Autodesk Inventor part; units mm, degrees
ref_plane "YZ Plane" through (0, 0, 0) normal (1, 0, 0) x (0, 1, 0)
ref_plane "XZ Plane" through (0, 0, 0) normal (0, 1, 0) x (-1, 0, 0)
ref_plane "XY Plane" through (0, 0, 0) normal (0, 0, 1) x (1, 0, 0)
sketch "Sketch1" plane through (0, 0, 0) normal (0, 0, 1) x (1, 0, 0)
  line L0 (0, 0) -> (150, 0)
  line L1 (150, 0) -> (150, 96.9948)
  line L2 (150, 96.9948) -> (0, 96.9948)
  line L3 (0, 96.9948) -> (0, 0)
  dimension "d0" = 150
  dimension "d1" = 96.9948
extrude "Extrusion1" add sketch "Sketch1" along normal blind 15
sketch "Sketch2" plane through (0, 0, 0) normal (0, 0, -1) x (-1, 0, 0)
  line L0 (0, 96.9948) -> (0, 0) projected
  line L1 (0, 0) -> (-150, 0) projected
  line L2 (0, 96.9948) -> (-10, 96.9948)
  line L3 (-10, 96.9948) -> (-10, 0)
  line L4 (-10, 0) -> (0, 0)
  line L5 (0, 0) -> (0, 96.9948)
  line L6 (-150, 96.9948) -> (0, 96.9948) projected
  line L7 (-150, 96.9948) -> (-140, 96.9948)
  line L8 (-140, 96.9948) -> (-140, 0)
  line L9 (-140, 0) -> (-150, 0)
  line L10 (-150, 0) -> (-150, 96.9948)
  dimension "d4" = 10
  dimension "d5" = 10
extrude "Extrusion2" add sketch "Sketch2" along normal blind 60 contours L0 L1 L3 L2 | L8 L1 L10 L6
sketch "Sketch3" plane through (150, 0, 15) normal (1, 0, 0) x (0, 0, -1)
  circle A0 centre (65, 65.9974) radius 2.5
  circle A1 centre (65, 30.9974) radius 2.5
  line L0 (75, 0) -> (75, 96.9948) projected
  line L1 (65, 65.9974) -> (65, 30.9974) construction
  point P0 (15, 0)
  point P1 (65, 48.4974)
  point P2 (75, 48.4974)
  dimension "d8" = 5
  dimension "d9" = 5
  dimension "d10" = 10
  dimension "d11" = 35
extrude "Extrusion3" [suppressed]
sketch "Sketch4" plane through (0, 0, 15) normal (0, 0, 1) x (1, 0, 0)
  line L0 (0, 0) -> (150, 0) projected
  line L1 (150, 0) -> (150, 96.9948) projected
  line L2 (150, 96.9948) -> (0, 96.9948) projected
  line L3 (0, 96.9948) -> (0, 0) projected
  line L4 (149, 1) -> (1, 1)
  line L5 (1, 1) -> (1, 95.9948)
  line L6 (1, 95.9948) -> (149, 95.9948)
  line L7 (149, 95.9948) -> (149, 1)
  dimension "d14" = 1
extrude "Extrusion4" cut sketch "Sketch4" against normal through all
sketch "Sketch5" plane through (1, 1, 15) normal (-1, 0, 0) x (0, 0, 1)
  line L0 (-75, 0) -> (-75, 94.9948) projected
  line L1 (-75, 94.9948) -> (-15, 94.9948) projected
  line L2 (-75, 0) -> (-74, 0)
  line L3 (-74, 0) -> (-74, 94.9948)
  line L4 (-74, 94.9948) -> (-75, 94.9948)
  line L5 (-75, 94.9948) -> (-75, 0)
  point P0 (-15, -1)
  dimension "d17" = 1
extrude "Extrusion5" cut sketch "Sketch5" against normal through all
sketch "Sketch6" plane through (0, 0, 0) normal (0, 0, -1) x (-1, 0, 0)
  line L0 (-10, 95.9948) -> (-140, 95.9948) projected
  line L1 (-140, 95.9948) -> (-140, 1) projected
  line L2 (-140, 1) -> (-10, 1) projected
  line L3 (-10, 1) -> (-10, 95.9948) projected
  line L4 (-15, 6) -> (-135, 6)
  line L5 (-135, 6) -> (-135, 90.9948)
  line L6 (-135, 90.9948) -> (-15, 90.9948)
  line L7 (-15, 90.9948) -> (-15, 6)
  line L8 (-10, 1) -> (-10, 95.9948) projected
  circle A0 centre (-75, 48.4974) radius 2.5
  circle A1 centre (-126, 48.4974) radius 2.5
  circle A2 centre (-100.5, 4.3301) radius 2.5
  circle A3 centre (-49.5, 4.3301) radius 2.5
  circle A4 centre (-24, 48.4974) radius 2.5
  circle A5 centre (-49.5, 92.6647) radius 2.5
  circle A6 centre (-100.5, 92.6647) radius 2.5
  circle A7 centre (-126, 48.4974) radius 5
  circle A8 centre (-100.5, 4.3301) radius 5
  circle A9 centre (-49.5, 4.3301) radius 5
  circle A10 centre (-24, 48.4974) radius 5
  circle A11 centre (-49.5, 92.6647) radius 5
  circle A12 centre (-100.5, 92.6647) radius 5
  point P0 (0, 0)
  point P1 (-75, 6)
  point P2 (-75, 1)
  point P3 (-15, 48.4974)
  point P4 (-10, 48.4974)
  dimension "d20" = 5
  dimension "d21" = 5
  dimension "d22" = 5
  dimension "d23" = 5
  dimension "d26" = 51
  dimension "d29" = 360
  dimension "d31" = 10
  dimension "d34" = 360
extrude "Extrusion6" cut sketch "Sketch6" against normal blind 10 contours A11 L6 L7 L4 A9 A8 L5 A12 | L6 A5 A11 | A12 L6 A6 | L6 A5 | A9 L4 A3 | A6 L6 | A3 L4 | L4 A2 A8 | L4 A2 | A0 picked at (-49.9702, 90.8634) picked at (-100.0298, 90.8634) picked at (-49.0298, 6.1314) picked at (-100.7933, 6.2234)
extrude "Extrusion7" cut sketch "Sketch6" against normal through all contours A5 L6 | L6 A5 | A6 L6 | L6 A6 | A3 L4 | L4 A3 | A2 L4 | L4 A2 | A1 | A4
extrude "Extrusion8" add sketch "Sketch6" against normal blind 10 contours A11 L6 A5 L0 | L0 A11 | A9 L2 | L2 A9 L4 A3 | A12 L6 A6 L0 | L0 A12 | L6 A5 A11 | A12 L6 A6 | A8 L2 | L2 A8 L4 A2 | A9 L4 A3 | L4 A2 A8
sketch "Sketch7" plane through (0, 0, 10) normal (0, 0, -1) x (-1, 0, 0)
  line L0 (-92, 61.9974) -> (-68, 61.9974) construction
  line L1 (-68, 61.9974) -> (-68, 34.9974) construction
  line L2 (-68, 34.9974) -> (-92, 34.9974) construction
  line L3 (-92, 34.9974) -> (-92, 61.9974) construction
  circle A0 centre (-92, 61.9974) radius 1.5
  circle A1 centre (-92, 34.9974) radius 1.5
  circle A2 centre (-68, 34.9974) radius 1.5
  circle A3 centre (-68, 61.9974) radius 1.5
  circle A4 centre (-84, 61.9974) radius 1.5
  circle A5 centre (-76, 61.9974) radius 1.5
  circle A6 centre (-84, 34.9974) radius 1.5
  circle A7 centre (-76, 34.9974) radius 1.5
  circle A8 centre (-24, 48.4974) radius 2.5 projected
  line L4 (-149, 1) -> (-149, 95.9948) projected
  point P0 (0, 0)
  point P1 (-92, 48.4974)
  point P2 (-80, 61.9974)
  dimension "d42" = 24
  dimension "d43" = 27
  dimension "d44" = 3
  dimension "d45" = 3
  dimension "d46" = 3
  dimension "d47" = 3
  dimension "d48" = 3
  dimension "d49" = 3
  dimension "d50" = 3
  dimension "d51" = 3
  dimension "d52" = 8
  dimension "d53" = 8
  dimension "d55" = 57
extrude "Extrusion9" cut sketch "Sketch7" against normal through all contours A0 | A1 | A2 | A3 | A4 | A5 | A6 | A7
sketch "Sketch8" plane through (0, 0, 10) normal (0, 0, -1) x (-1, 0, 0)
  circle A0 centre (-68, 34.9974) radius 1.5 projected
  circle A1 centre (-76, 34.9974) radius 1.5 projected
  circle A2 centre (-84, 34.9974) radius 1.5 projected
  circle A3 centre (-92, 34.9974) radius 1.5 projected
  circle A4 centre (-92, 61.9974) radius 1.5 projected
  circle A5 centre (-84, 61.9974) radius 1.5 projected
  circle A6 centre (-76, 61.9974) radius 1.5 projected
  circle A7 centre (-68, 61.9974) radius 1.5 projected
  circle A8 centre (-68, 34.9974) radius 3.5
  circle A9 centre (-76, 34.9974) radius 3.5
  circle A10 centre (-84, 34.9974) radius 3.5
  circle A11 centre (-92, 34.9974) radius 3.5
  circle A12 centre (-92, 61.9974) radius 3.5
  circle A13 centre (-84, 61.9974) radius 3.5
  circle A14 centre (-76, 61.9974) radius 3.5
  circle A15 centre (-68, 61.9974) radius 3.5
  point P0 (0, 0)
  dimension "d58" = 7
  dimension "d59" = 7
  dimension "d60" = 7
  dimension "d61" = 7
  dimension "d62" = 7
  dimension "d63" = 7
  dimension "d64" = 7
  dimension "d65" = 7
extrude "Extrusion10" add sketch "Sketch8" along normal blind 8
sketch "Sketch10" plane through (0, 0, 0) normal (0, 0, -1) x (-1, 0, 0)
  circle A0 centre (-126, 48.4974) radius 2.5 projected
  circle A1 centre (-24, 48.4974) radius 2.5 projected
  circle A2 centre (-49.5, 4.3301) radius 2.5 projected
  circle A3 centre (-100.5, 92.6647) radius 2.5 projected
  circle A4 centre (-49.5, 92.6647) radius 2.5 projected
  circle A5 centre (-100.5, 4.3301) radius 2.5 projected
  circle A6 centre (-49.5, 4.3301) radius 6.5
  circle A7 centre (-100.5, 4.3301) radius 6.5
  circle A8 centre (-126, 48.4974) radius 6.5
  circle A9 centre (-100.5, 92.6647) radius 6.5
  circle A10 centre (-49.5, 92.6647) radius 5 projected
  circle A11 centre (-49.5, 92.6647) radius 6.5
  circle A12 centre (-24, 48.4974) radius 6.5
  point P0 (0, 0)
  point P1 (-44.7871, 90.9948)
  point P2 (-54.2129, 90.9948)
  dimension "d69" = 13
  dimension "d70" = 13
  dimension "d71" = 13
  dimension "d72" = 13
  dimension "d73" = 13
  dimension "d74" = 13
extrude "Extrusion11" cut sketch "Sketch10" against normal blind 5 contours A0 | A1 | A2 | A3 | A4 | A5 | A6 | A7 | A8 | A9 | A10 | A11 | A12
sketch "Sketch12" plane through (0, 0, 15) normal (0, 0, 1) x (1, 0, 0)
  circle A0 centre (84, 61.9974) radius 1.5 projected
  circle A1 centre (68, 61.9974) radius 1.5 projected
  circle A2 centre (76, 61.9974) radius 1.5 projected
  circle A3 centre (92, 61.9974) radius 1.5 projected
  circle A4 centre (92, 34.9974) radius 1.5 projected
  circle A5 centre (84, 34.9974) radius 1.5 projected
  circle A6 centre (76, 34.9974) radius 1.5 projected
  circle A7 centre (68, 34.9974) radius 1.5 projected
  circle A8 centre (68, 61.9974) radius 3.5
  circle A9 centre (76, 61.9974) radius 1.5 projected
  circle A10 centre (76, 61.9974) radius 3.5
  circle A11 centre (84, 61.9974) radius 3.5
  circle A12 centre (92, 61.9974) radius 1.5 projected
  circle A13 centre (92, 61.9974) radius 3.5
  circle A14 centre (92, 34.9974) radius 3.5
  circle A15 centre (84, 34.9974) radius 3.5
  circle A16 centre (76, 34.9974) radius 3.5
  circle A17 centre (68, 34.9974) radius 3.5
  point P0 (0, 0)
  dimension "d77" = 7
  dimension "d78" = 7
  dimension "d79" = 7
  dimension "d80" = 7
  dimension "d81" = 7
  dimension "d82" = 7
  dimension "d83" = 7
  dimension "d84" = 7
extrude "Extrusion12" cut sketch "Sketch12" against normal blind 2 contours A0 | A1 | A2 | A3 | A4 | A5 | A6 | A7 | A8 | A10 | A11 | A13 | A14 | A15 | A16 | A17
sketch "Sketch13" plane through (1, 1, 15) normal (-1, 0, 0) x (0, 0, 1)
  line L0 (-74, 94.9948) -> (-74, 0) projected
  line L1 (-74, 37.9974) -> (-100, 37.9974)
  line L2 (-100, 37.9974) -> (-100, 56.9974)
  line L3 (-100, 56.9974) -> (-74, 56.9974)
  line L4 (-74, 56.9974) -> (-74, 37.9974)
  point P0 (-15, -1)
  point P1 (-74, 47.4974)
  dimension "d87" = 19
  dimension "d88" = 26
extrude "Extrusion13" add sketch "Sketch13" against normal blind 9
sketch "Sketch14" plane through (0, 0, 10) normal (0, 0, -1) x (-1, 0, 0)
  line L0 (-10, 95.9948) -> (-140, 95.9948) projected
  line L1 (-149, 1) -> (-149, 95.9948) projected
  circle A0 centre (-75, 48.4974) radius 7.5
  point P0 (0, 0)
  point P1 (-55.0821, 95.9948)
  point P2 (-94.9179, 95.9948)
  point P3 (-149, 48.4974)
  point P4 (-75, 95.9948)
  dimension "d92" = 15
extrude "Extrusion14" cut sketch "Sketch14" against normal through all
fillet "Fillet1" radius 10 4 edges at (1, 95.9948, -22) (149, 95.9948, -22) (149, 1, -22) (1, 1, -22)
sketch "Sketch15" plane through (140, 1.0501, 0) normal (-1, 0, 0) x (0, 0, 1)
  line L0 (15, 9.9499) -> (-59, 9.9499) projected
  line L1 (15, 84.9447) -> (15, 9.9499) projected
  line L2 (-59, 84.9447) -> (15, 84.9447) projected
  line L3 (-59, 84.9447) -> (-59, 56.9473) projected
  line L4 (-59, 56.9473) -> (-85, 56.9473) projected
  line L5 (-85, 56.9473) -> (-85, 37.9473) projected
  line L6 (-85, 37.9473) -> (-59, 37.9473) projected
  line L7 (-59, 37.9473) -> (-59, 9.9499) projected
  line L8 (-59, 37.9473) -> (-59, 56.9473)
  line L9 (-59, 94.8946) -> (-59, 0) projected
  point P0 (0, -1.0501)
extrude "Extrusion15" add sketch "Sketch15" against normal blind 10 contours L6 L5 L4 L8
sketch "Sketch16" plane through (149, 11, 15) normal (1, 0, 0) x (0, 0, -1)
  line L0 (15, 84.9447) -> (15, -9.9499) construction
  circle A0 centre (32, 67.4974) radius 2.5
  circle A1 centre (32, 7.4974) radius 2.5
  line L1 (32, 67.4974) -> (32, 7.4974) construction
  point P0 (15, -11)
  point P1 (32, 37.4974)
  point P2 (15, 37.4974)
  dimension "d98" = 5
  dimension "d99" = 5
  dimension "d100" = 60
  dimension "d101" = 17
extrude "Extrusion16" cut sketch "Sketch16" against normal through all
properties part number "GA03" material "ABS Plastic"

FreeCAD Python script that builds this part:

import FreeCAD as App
import Part
import Sketcher


def edges_at(feature, points):
    """Names of the edges that pass closest to the given points."""
    edges = feature.Shape.Edges
    near = lambda p: min(range(len(edges)), key=lambda i: edges[i].distToShape(Part.Vertex(*p))[0])
    return sorted({f"Edge{near(p) + 1}" for p in points})

doc = App.newDocument("Part")
body = doc.addObject("PartDesign::Body", "Body")

# Sketch on XY plane
sketch1 = doc.addObject("Sketcher::SketchObject", "Sketch")
body.addObject(sketch1)
sketch1.AttachmentSupport = (doc.XY_Plane, [""])
sketch1.MapMode = "FlatFace"
sketch1.addGeometry(Part.LineSegment(App.Vector(0, 96.9948, 0), App.Vector(0, 0, 0)), False)
sketch1.addGeometry(Part.LineSegment(App.Vector(0, 0, 0), App.Vector(150, 0, 0)), False)
sketch1.addGeometry(Part.LineSegment(App.Vector(150, 0, 0), App.Vector(150, 96.9948, 0)), False)
sketch1.addGeometry(Part.LineSegment(App.Vector(150, 96.9948, 0), App.Vector(0, 96.9948, 0)), False)
sketch1.addConstraint(Sketcher.Constraint("Coincident", 0, 2, 1, 1))
sketch1.addConstraint(Sketcher.Constraint("Coincident", 1, 2, 2, 1))
sketch1.addConstraint(Sketcher.Constraint("Coincident", 2, 2, 3, 1))
sketch1.addConstraint(Sketcher.Constraint("Coincident", 3, 2, 0, 1))
sketch1.addConstraint(Sketcher.Constraint("Vertical", 0))
sketch1.addConstraint(Sketcher.Constraint("Horizontal", 1))
sketch1.addConstraint(Sketcher.Constraint("Vertical", 2))
sketch1.addConstraint(Sketcher.Constraint("Horizontal", 3))
sketch1.addConstraint(Sketcher.Constraint("Coincident", 0, 2, -1, 1))
sketch1.addConstraint(Sketcher.Constraint("DistanceX", 1, 1, 1, 2, 150.0))
sketch1.addConstraint(Sketcher.Constraint("DistanceY", 0, 2, 0, 1, 96.9948))
pad1 = doc.addObject("PartDesign::Pad", "Pad")
body.addObject(pad1)
pad1.Profile = sketch1
pad1.Length = 15

# Sketch on XY plane
sketch2 = doc.addObject("Sketcher::SketchObject", "Sketch001")
body.addObject(sketch2)
sketch2.AttachmentSupport = (doc.XY_Plane, [""])
sketch2.MapMode = "FlatFace"
sketch2.addGeometry(Part.LineSegment(App.Vector(0, 0, 0), App.Vector(0, 96.9948, 0)), False)
sketch2.addGeometry(Part.LineSegment(App.Vector(0, 96.9948, 0), App.Vector(10, 96.9948, 0)), False)
sketch2.addGeometry(Part.LineSegment(App.Vector(10, 96.9948, 0), App.Vector(10, 0, 0)), False)
sketch2.addGeometry(Part.LineSegment(App.Vector(10, 0, 0), App.Vector(0, 0, 0)), False)
sketch2.addGeometry(Part.LineSegment(App.Vector(140, 0, 0), App.Vector(140, 96.9948, 0)), False)
sketch2.addGeometry(Part.LineSegment(App.Vector(140, 96.9948, 0), App.Vector(150, 96.9948, 0)), False)
sketch2.addGeometry(Part.LineSegment(App.Vector(150, 96.9948, 0), App.Vector(150, 0, 0)), False)
sketch2.addGeometry(Part.LineSegment(App.Vector(150, 0, 0), App.Vector(140, 0, 0)), False)
sketch2.addConstraint(Sketcher.Constraint("Coincident", 0, 2, 1, 1))
sketch2.addConstraint(Sketcher.Constraint("Coincident", 1, 2, 2, 1))
sketch2.addConstraint(Sketcher.Constraint("Coincident", 2, 2, 3, 1))
sketch2.addConstraint(Sketcher.Constraint("Coincident", 3, 2, 0, 1))
sketch2.addConstraint(Sketcher.Constraint("Coincident", 4, 2, 5, 1))
sketch2.addConstraint(Sketcher.Constraint("Coincident", 5, 2, 6, 1))
sketch2.addConstraint(Sketcher.Constraint("Coincident", 6, 2, 7, 1))
sketch2.addConstraint(Sketcher.Constraint("Coincident", 7, 2, 4, 1))
sketch2.addConstraint(Sketcher.Constraint("Vertical", 0))
sketch2.addConstraint(Sketcher.Constraint("Horizontal", 1))
sketch2.addConstraint(Sketcher.Constraint("Vertical", 2))
sketch2.addConstraint(Sketcher.Constraint("Horizontal", 3))
sketch2.addConstraint(Sketcher.Constraint("Vertical", 4))
sketch2.addConstraint(Sketcher.Constraint("Horizontal", 5))
sketch2.addConstraint(Sketcher.Constraint("Vertical", 6))
sketch2.addConstraint(Sketcher.Constraint("Horizontal", 7))
sketch2.addConstraint(Sketcher.Constraint("Coincident", 3, 2, -1, 1))
sketch2.addConstraint(Sketcher.Constraint("PointOnObject", 6, 2, -1))
sketch2.addConstraint(Sketcher.Constraint("Horizontal", 1, 2, 4, 2))
sketch2.addConstraint(Sketcher.Constraint("Equal", 3, 5))
sketch2.addConstraint(Sketcher.Constraint("DistanceX", 1, 1, 1, 2, 10.0))
sketch2.addConstraint(Sketcher.Constraint("DistanceX", -1, 1, 4, 2, 140.0))
sketch2.addConstraint(Sketcher.Constraint("DistanceY", 0, 1, 0, 2, 96.9948))
pad2 = doc.addObject("PartDesign::Pad", "Pad001")
body.addObject(pad2)
pad2.Profile = sketch2
pad2.Length = 60
pad2.Reversed = True

# Sketch on XY plane
sketch3 = doc.addObject("Sketcher::SketchObject", "Sketch002")
body.addObject(sketch3)
sketch3.AttachmentSupport = (doc.XY_Plane, [""])
sketch3.MapMode = "FlatFace"
sketch3.AttachmentOffset = App.Placement(App.Vector(0, 0, 15), App.Rotation())
sketch3.addGeometry(Part.LineSegment(App.Vector(0, 96.9948, 0), App.Vector(0, 0, 0)), False)
sketch3.addGeometry(Part.LineSegment(App.Vector(0, 0, 0), App.Vector(150, 0, 0)), False)
sketch3.addGeometry(Part.LineSegment(App.Vector(150, 0, 0), App.Vector(150, 96.9948, 0)), False)
sketch3.addGeometry(Part.LineSegment(App.Vector(150, 96.9948, 0), App.Vector(0, 96.9948, 0)), False)
sketch3.addGeometry(Part.LineSegment(App.Vector(149, 95.9948, 0), App.Vector(149, 1, 0)), False)
sketch3.addGeometry(Part.LineSegment(App.Vector(149, 1, 0), App.Vector(1, 1, 0)), False)
sketch3.addGeometry(Part.LineSegment(App.Vector(1, 1, 0), App.Vector(1, 95.9948, 0)), False)
sketch3.addGeometry(Part.LineSegment(App.Vector(1, 95.9948, 0), App.Vector(149, 95.9948, 0)), False)
sketch3.addConstraint(Sketcher.Constraint("Coincident", 0, 2, 1, 1))
sketch3.addConstraint(Sketcher.Constraint("Coincident", 1, 2, 2, 1))
sketch3.addConstraint(Sketcher.Constraint("Coincident", 2, 2, 3, 1))
sketch3.addConstraint(Sketcher.Constraint("Coincident", 3, 2, 0, 1))
sketch3.addConstraint(Sketcher.Constraint("Coincident", 4, 2, 5, 1))
sketch3.addConstraint(Sketcher.Constraint("Coincident", 5, 2, 6, 1))
sketch3.addConstraint(Sketcher.Constraint("Coincident", 6, 2, 7, 1))
sketch3.addConstraint(Sketcher.Constraint("Coincident", 7, 2, 4, 1))
sketch3.addConstraint(Sketcher.Constraint("Vertical", 0))
sketch3.addConstraint(Sketcher.Constraint("Horizontal", 1))
sketch3.addConstraint(Sketcher.Constraint("Vertical", 2))
sketch3.addConstraint(Sketcher.Constraint("Horizontal", 3))
sketch3.addConstraint(Sketcher.Constraint("Vertical", 4))
sketch3.addConstraint(Sketcher.Constraint("Horizontal", 5))
sketch3.addConstraint(Sketcher.Constraint("Vertical", 6))
sketch3.addConstraint(Sketcher.Constraint("Horizontal", 7))
sketch3.addConstraint(Sketcher.Constraint("Coincident", 0, 2, -1, 1))
sketch3.addConstraint(Sketcher.Constraint("DistanceY", -1, 1, 4, 2, 1.0))
sketch3.addConstraint(Sketcher.Constraint("DistanceX", -1, 1, 5, 2, 1.0))
sketch3.addConstraint(Sketcher.Constraint("DistanceX", 4, 2, 1, 2, 1.0))
sketch3.addConstraint(Sketcher.Constraint("DistanceY", 6, 2, 3, 2, 1.0))
sketch3.addConstraint(Sketcher.Constraint("DistanceX", 1, 1, 1, 2, 150.0))
sketch3.addConstraint(Sketcher.Constraint("DistanceY", 0, 2, 0, 1, 96.9948))
pocket1 = doc.addObject("PartDesign::Pocket", "Pocket")
body.addObject(pocket1)
pocket1.Profile = sketch3
pocket1.Type = "ThroughAll"

# Sketch on YZ plane
sketch4 = doc.addObject("Sketcher::SketchObject", "Sketch003")
body.addObject(sketch4)
sketch4.AttachmentSupport = (doc.YZ_Plane, [""])
sketch4.MapMode = "FlatFace"
sketch4.AttachmentOffset = App.Placement(App.Vector(0, 0, 1), App.Rotation())
sketch4.addGeometry(Part.LineSegment(App.Vector(95.9948, -60, 0), App.Vector(1, -60, 0)), False)
sketch4.addGeometry(Part.LineSegment(App.Vector(1, -60, 0), App.Vector(1, -59, 0)), False)
sketch4.addGeometry(Part.LineSegment(App.Vector(1, -59, 0), App.Vector(95.9948, -59, 0)), False)
sketch4.addGeometry(Part.LineSegment(App.Vector(95.9948, -59, 0), App.Vector(95.9948, -60, 0)), False)
sketch4.addConstraint(Sketcher.Constraint("Coincident", 0, 2, 1, 1))
sketch4.addConstraint(Sketcher.Constraint("Coincident", 1, 2, 2, 1))
sketch4.addConstraint(Sketcher.Constraint("Coincident", 2, 2, 3, 1))
sketch4.addConstraint(Sketcher.Constraint("Coincident", 3, 2, 0, 1))
sketch4.addConstraint(Sketcher.Constraint("Horizontal", 0))
sketch4.addConstraint(Sketcher.Constraint("Vertical", 1))
sketch4.addConstraint(Sketcher.Constraint("Horizontal", 2))
sketch4.addConstraint(Sketcher.Constraint("Vertical", 3))
sketch4.addConstraint(Sketcher.Constraint("DistanceY", 1, 1, 1, 2, 1.0))
sketch4.addConstraint(Sketcher.Constraint("DistanceX", -1, 1, 0, 2, 1.0))
sketch4.addConstraint(Sketcher.Constraint("DistanceY", 0, 2, -1, 1, 60.0))
sketch4.addConstraint(Sketcher.Constraint("DistanceX", 0, 2, 0, 1, 94.9948))
pocket2 = doc.addObject("PartDesign::Pocket", "Pocket001")
body.addObject(pocket2)
pocket2.Profile = sketch4
pocket2.Type = "ThroughAll"
pocket2.Reversed = True

# Sketch on XY plane
sketch5 = doc.addObject("Sketcher::SketchObject", "Sketch004")
body.addObject(sketch5)
sketch5.AttachmentSupport = (doc.XY_Plane, [""])
sketch5.MapMode = "FlatFace"
sketch5.addGeometry(Part.LineSegment(App.Vector(15, 90.9948, 0), App.Vector(135, 90.9948, 0)), False)
sketch5.addGeometry(Part.LineSegment(App.Vector(135, 90.9948, 0), App.Vector(135, 6, 0)), False)
sketch5.addGeometry(Part.LineSegment(App.Vector(135, 6, 0), App.Vector(15, 6, 0)), False)
sketch5.addGeometry(Part.LineSegment(App.Vector(15, 6, 0), App.Vector(15, 90.9948, 0)), False)
sketch5.addGeometry(Part.Circle(App.Vector(126, 48.4974, 0), App.Vector(0, 0, 1), 5), False)
sketch5.addGeometry(Part.Circle(App.Vector(24, 48.4974, 0), App.Vector(0, 0, 1), 5), False)
sketch5.addConstraint(Sketcher.Constraint("Coincident", 0, 2, 1, 1))
sketch5.addConstraint(Sketcher.Constraint("Coincident", 1, 2, 2, 1))
sketch5.addConstraint(Sketcher.Constraint("Coincident", 2, 2, 3, 1))
sketch5.addConstraint(Sketcher.Constraint("Coincident", 3, 2, 0, 1))
sketch5.addConstraint(Sketcher.Constraint("Horizontal", 0))
sketch5.addConstraint(Sketcher.Constraint("Vertical", 1))
sketch5.addConstraint(Sketcher.Constraint("Horizontal", 2))
sketch5.addConstraint(Sketcher.Constraint("Vertical", 3))
sketch5.addConstraint(Sketcher.Constraint("Equal", 4, 5))
sketch5.addConstraint(Sketcher.Constraint("Horizontal", 4, 3, 5, 3))
sketch5.addConstraint(Sketcher.Constraint("Diameter", 4, 10.0))
sketch5.addConstraint(Sketcher.Constraint("DistanceX", 0, 1, 0, 2, 120.0))
sketch5.addConstraint(Sketcher.Constraint("DistanceX", -1, 1, 4, 3, 126.0))
sketch5.addConstraint(Sketcher.Constraint("DistanceX", -1, 1, 5, 3, 24.0))
sketch5.addConstraint(Sketcher.Constraint("DistanceX", -1, 1, 0, 2, 135.0))
sketch5.addConstraint(Sketcher.Constraint("DistanceY", -1, 1, 1, 2, 6.0))
sketch5.addConstraint(Sketcher.Constraint("DistanceY", 1, 2, 1, 1, 84.9948))
sketch5.addConstraint(Sketcher.Constraint("DistanceY", -1, 1, 4, 3, 48.4974))
pocket3 = doc.addObject("PartDesign::Pocket", "Pocket002")
body.addObject(pocket3)
pocket3.Profile = sketch5
pocket3.Length = 10
pocket3.Reversed = True

# Sketch on XY plane
sketch6 = doc.addObject("Sketcher::SketchObject", "Sketch005")
body.addObject(sketch6)
sketch6.AttachmentSupport = (doc.XY_Plane, [""])
sketch6.MapMode = "FlatFace"
sketch6.addGeometry(Part.Circle(App.Vector(49.5, 92.6647, 0), App.Vector(0, 0, 1), 2.5), False)
sketch6.addGeometry(Part.Circle(App.Vector(100.5, 92.6647, 0), App.Vector(0, 0, 1), 2.5), False)
sketch6.addGeometry(Part.Circle(App.Vector(49.5, 4.3301, 0), App.Vector(0, 0, 1), 2.5), False)
sketch6.addGeometry(Part.Circle(App.Vector(100.5, 4.3301, 0), App.Vector(0, 0, 1), 2.5), False)
sketch6.addGeometry(Part.Circle(App.Vector(126, 48.4974, 0), App.Vector(0, 0, 1), 2.5), False)
sketch6.addGeometry(Part.Circle(App.Vector(24, 48.4974, 0), App.Vector(0, 0, 1), 2.5), False)
sketch6.addConstraint(Sketcher.Constraint("Equal", 0, 1))
sketch6.addConstraint(Sketcher.Constraint("Equal", 1, 2))
sketch6.addConstraint(Sketcher.Constraint("Equal", 2, 3))
sketch6.addConstraint(Sketcher.Constraint("Equal", 3, 4))
sketch6.addConstraint(Sketcher.Constraint("Equal", 4, 5))
sketch6.addConstraint(Sketcher.Constraint("Horizontal", 0, 3, 1, 3))
sketch6.addConstraint(Sketcher.Constraint("Horizontal", 2, 3, 3, 3))
sketch6.addConstraint(Sketcher.Constraint("Horizontal", 4, 3, 5, 3))
sketch6.addConstraint(Sketcher.Constraint("Vertical", 0, 3, 2, 3))
sketch6.addConstraint(Sketcher.Constraint("Vertical", 1, 3, 3, 3))
sketch6.addConstraint(Sketcher.Constraint("Diameter", 0, 5.0))
sketch6.addConstraint(Sketcher.Constraint("DistanceX", 0, 3, 1, 3, 51.0))
sketch6.addConstraint(Sketcher.Constraint("DistanceX", -1, 1, 4, 3, 126.0))
sketch6.addConstraint(Sketcher.Constraint("DistanceX", -1, 1, 5, 3, 24.0))
sketch6.addConstraint(Sketcher.Constraint("DistanceX", -1, 1, 0, 3, 49.5))
sketch6.addConstraint(Sketcher.Constraint("DistanceY", -1, 1, 2, 3, 4.33))
sketch6.addConstraint(Sketcher.Constraint("DistanceY", -1, 1, 0, 3, 92.6647))
sketch6.addConstraint(Sketcher.Constraint("DistanceY", -1, 1, 4, 3, 48.4974))
pocket4 = doc.addObject("PartDesign::Pocket", "Pocket003")
body.addObject(pocket4)
pocket4.Profile = sketch6
pocket4.Type = "ThroughAll"
pocket4.Reversed = True

# Sketch on XY plane
sketch7 = doc.addObject("Sketcher::SketchObject", "Sketch006")
body.addObject(sketch7)
sketch7.AttachmentSupport = (doc.XY_Plane, [""])
sketch7.MapMode = "FlatFace"
sketch7.addGeometry(Part.Circle(App.Vector(49.5, 92.6647, 0), App.Vector(0, 0, 1), 5), False)
sketch7.addGeometry(Part.Circle(App.Vector(49.5, 92.6647, 0), App.Vector(0, 0, 1), 2.5), False)
sketch7.addGeometry(Part.Circle(App.Vector(49.5, 4.3301, 0), App.Vector(0, 0, 1), 5), False)
sketch7.addGeometry(Part.Circle(App.Vector(49.5, 4.3301, 0), App.Vector(0, 0, 1), 2.5), False)
sketch7.addGeometry(Part.Circle(App.Vector(100.5, 92.6647, 0), App.Vector(0, 0, 1), 5), False)
sketch7.addGeometry(Part.Circle(App.Vector(100.5, 92.6647, 0), App.Vector(0, 0, 1), 2.5), False)
sketch7.addGeometry(Part.Circle(App.Vector(100.5, 4.3301, 0), App.Vector(0, 0, 1), 5), False)
sketch7.addGeometry(Part.Circle(App.Vector(100.5, 4.3301, 0), App.Vector(0, 0, 1), 2.5), False)
sketch7.addConstraint(Sketcher.Constraint("Coincident", 1, 3, 0, 3))
sketch7.addConstraint(Sketcher.Constraint("Coincident", 3, 3, 2, 3))
sketch7.addConstraint(Sketcher.Constraint("Coincident", 5, 3, 4, 3))
sketch7.addConstraint(Sketcher.Constraint("Coincident", 7, 3, 6, 3))
sketch7.addConstraint(Sketcher.Constraint("Equal", 0, 2))
sketch7.addConstraint(Sketcher.Constraint("Equal", 1, 3))
sketch7.addConstraint(Sketcher.Constraint("Equal", 2, 4))
sketch7.addConstraint(Sketcher.Constraint("Equal", 3, 5))
sketch7.addConstraint(Sketcher.Constraint("Equal", 4, 6))
sketch7.addConstraint(Sketcher.Constraint("Equal", 5, 7))
sketch7.addConstraint(Sketcher.Constraint("Horizontal", 1, 3, 4, 3))
sketch7.addConstraint(Sketcher.Constraint("Horizontal", 3, 3, 6, 3))
sketch7.addConstraint(Sketcher.Constraint("Vertical", 1, 3, 2, 3))
sketch7.addConstraint(Sketcher.Constraint("Vertical", 5, 3, 6, 3))
sketch7.addConstraint(Sketcher.Constraint("Diameter", 0, 10.0))
sketch7.addConstraint(Sketcher.Constraint("Diameter", 1, 5.0))
sketch7.addConstraint(Sketcher.Constraint("DistanceX", 0, 3, 4, 3, 51.0))
sketch7.addConstraint(Sketcher.Constraint("DistanceX", -1, 1, 0, 3, 49.5))
sketch7.addConstraint(Sketcher.Constraint("DistanceY", -1, 1, 2, 3, 4.33))
sketch7.addConstraint(Sketcher.Constraint("DistanceY", -1, 1, 0, 3, 92.6647))
pad3 = doc.addObject("PartDesign::Pad", "Pad002")
body.addObject(pad3)
pad3.Profile = sketch7
pad3.Length = 10

# Sketch on XY plane
sketch8 = doc.addObject("Sketcher::SketchObject", "Sketch007")
body.addObject(sketch8)
sketch8.AttachmentSupport = (doc.XY_Plane, [""])
sketch8.MapMode = "FlatFace"
sketch8.AttachmentOffset = App.Placement(App.Vector(0, 0, 10), App.Rotation())
sketch8.addGeometry(Part.Circle(App.Vector(92, 61.9974, 0), App.Vector(0, 0, 1), 1.5), False)
sketch8.addGeometry(Part.Circle(App.Vector(92, 34.9974, 0), App.Vector(0, 0, 1), 1.5), False)
sketch8.addGeometry(Part.Circle(App.Vector(68, 34.9974, 0), App.Vector(0, 0, 1), 1.5), False)
sketch8.addGeometry(Part.Circle(App.Vector(68, 61.9974, 0), App.Vector(0, 0, 1), 1.5), False)
sketch8.addGeometry(Part.Circle(App.Vector(84, 61.9974, 0), App.Vector(0, 0, 1), 1.5), False)
sketch8.addGeometry(Part.Circle(App.Vector(76, 61.9974, 0), App.Vector(0, 0, 1), 1.5), False)
sketch8.addGeometry(Part.Circle(App.Vector(84, 34.9974, 0), App.Vector(0, 0, 1), 1.5), False)
sketch8.addGeometry(Part.Circle(App.Vector(76, 34.9974, 0), App.Vector(0, 0, 1), 1.5), False)
sketch8.addConstraint(Sketcher.Constraint("Equal", 0, 1))
sketch8.addConstraint(Sketcher.Constraint("Equal", 1, 2))
sketch8.addConstraint(Sketcher.Constraint("Equal", 2, 3))
sketch8.addConstraint(Sketcher.Constraint("Equal", 3, 4))
sketch8.addConstraint(Sketcher.Constraint("Equal", 4, 5))
sketch8.addConstraint(Sketcher.Constraint("Equal", 5, 6))
sketch8.addConstraint(Sketcher.Constraint("Equal", 6, 7))
sketch8.addConstraint(Sketcher.Constraint("Horizontal", 1, 3, 2, 3))
sketch8.addConstraint(Sketcher.Constraint("Horizontal", 0, 3, 3, 3))
sketch8.addConstraint(Sketcher.Constraint("Horizontal", 3, 3, 4, 3))
sketch8.addConstraint(Sketcher.Constraint("Horizontal", 4, 3, 5, 3))
sketch8.addConstraint(Sketcher.Constraint("Horizontal", 2, 3, 6, 3))
sketch8.addConstraint(Sketcher.Constraint("Horizontal", 6, 3, 7, 3))
sketch8.addConstraint(Sketcher.Constraint("Vertical", 0, 3, 1, 3))
sketch8.addConstraint(Sketcher.Constraint("Vertical", 2, 3, 3, 3))
sketch8.addConstraint(Sketcher.Constraint("Vertical", 4, 3, 6, 3))
sketch8.addConstraint(Sketcher.Constraint("Vertical", 5, 3, 7, 3))
sketch8.addConstraint(Sketcher.Constraint("Diameter", 0, 3.0))
sketch8.addConstraint(Sketcher.Constraint("DistanceY", 1, 3, 0, 3, 27.0))
sketch8.addConstraint(Sketcher.Constraint("DistanceX", 2, 3, 1, 3, 24.0))
sketch8.addConstraint(Sketcher.Constraint("DistanceX", 4, 3, 0, 3, 8.0))
sketch8.addConstraint(Sketcher.Constraint("DistanceX", 3, 3, 5, 3, 8.0))
sketch8.addConstraint(Sketcher.Constraint("DistanceX", -1, 1, 0, 3, 92.0))
sketch8.addConstraint(Sketcher.Constraint("DistanceY", -1, 1, 0, 3, 61.9974))
pocket5 = doc.addObject("PartDesign::Pocket", "Pocket004")
body.addObject(pocket5)
pocket5.Profile = sketch8
pocket5.Type = "ThroughAll"
pocket5.Reversed = True

# Sketch on XY plane
sketch9 = doc.addObject("Sketcher::SketchObject", "Sketch008")
body.addObject(sketch9)
sketch9.AttachmentSupport = (doc.XY_Plane, [""])
sketch9.MapMode = "FlatFace"
sketch9.AttachmentOffset = App.Placement(App.Vector(0, 0, 10), App.Rotation())
sketch9.addGeometry(Part.Circle(App.Vector(68, 34.9974, 0), App.Vector(0, 0, 1), 3.5), False)
sketch9.addGeometry(Part.Circle(App.Vector(68, 34.9974, 0), App.Vector(0, 0, 1), 1.5), False)
sketch9.addGeometry(Part.Circle(App.Vector(76, 34.9974, 0), App.Vector(0, 0, 1), 3.5), False)
sketch9.addGeometry(Part.Circle(App.Vector(76, 34.9974, 0), App.Vector(0, 0, 1), 1.5), False)
sketch9.addGeometry(Part.Circle(App.Vector(84, 34.9974, 0), App.Vector(0, 0, 1), 3.5), False)
sketch9.addGeometry(Part.Circle(App.Vector(84, 34.9974, 0), App.Vector(0, 0, 1), 1.5), False)
sketch9.addGeometry(Part.Circle(App.Vector(92, 34.9974, 0), App.Vector(0, 0, 1), 3.5), False)
sketch9.addGeometry(Part.Circle(App.Vector(92, 34.9974, 0), App.Vector(0, 0, 1), 1.5), False)
sketch9.addGeometry(Part.Circle(App.Vector(92, 61.9974, 0), App.Vector(0, 0, 1), 3.5), False)
sketch9.addGeometry(Part.Circle(App.Vector(92, 61.9974, 0), App.Vector(0, 0, 1), 1.5), False)
sketch9.addGeometry(Part.Circle(App.Vector(84, 61.9974, 0), App.Vector(0, 0, 1), 3.5), False)
sketch9.addGeometry(Part.Circle(App.Vector(84, 61.9974, 0), App.Vector(0, 0, 1), 1.5), False)
sketch9.addGeometry(Part.Circle(App.Vector(76, 61.9974, 0), App.Vector(0, 0, 1), 3.5), False)
sketch9.addGeometry(Part.Circle(App.Vector(76, 61.9974, 0), App.Vector(0, 0, 1), 1.5), False)
sketch9.addGeometry(Part.Circle(App.Vector(68, 61.9974, 0), App.Vector(0, 0, 1), 3.5), False)
sketch9.addGeometry(Part.Circle(App.Vector(68, 61.9974, 0), App.Vector(0, 0, 1), 1.5), False)
sketch9.addConstraint(Sketcher.Constraint("Coincident", 1, 3, 0, 3))
sketch9.addConstraint(Sketcher.Constraint("Coincident", 3, 3, 2, 3))
sketch9.addConstraint(Sketcher.Constraint("Coincident", 5, 3, 4, 3))
sketch9.addConstraint(Sketcher.Constraint("Coincident", 7, 3, 6, 3))
sketch9.addConstraint(Sketcher.Constraint("Coincident", 9, 3, 8, 3))
sketch9.addConstraint(Sketcher.Constraint("Coincident", 11, 3, 10, 3))
sketch9.addConstraint(Sketcher.Constraint("Coincident", 13, 3, 12, 3))
sketch9.addConstraint(Sketcher.Constraint("Coincident", 15, 3, 14, 3))
sketch9.addConstraint(Sketcher.Constraint("Equal", 0, 2))
sketch9.addConstraint(Sketcher.Constraint("Equal", 1, 3))
sketch9.addConstraint(Sketcher.Constraint("Equal", 2, 4))
sketch9.addConstraint(Sketcher.Constraint("Equal", 3, 5))
sketch9.addConstraint(Sketcher.Constraint("Equal", 4, 6))
sketch9.addConstraint(Sketcher.Constraint("Equal", 5, 7))
sketch9.addConstraint(Sketcher.Constraint("Equal", 6, 8))
sketch9.addConstraint(Sketcher.Constraint("Equal", 7, 9))
sketch9.addConstraint(Sketcher.Constraint("Equal", 8, 10))
sketch9.addConstraint(Sketcher.Constraint("Equal", 9, 11))
sketch9.addConstraint(Sketcher.Constraint("Equal", 10, 12))
sketch9.addConstraint(Sketcher.Constraint("Equal", 11, 13))
sketch9.addConstraint(Sketcher.Constraint("Equal", 12, 14))
sketch9.addConstraint(Sketcher.Constraint("Equal", 13, 15))
sketch9.addConstraint(Sketcher.Constraint("Horizontal", 1, 3, 2, 3))
sketch9.addConstraint(Sketcher.Constraint("Horizontal", 3, 3, 4, 3))
sketch9.addConstraint(Sketcher.Constraint("Horizontal", 5, 3, 6, 3))
sketch9.addConstraint(Sketcher.Constraint("Horizontal", 9, 3, 10, 3))
sketch9.addConstraint(Sketcher.Constraint("Horizontal", 11, 3, 12, 3))
sketch9.addConstraint(Sketcher.Constraint("Horizontal", 13, 3, 14, 3))
sketch9.addConstraint(Sketcher.Constraint("Vertical", 7, 3, 8, 3))
sketch9.addConstraint(Sketcher.Constraint("Vertical", 5, 3, 10, 3))
sketch9.addConstraint(Sketcher.Constraint("Vertical", 3, 3, 12, 3))
sketch9.addConstraint(Sketcher.Constraint("Vertical", 1, 3, 14, 3))
sketch9.addConstraint(Sketcher.Constraint("Diameter", 0, 7.0))
sketch9.addConstraint(Sketcher.Constraint("Diameter", 1, 3.0))
sketch9.addConstraint(Sketcher.Constraint("DistanceX", -1, 1, 0, 3, 68.0))
sketch9.addConstraint(Sketcher.Constraint("DistanceX", -1, 1, 2, 3, 76.0))
sketch9.addConstraint(Sketcher.Constraint("DistanceX", -1, 1, 4, 3, 84.0))
sketch9.addConstraint(Sketcher.Constraint("DistanceX", -1, 1, 6, 3, 92.0))
sketch9.addConstraint(Sketcher.Constraint("DistanceY", 6, 3, 8, 3, 27.0))
sketch9.addConstraint(Sketcher.Constraint("DistanceY", -1, 1, 0, 3, 34.9974))
pad4 = doc.addObject("PartDesign::Pad", "Pad003")
body.addObject(pad4)
pad4.Profile = sketch9
pad4.Length = 8
pad4.Reversed = True

# Sketch on XY plane
sketch10 = doc.addObject("Sketcher::SketchObject", "Sketch009")
body.addObject(sketch10)
sketch10.AttachmentSupport = (doc.XY_Plane, [""])
sketch10.MapMode = "FlatFace"
sketch10.addGeometry(Part.Circle(App.Vector(126, 48.4974, 0), App.Vector(0, 0, 1), 6.5), False)
sketch10.addGeometry(Part.Circle(App.Vector(24, 48.4974, 0), App.Vector(0, 0, 1), 6.5), False)
sketch10.addGeometry(Part.Circle(App.Vector(49.5, 4.3301, 0), App.Vector(0, 0, 1), 6.5), False)
sketch10.addGeometry(Part.Circle(App.Vector(100.5, 92.6647, 0), App.Vector(0, 0, 1), 6.5), False)
sketch10.addGeometry(Part.Circle(App.Vector(49.5, 92.6647, 0), App.Vector(0, 0, 1), 6.5), False)
sketch10.addGeometry(Part.Circle(App.Vector(100.5, 4.3301, 0), App.Vector(0, 0, 1), 6.5), False)
sketch10.addConstraint(Sketcher.Constraint("Equal", 0, 1))
sketch10.addConstraint(Sketcher.Constraint("Equal", 1, 2))
sketch10.addConstraint(Sketcher.Constraint("Equal", 2, 3))
sketch10.addConstraint(Sketcher.Constraint("Equal", 3, 4))
sketch10.addConstraint(Sketcher.Constraint("Equal", 4, 5))
sketch10.addConstraint(Sketcher.Constraint("Horizontal", 0, 3, 1, 3))
sketch10.addConstraint(Sketcher.Constraint("Horizontal", 3, 3, 4, 3))
sketch10.addConstraint(Sketcher.Constraint("Horizontal", 2, 3, 5, 3))
sketch10.addConstraint(Sketcher.Constraint("Vertical", 2, 3, 4, 3))
sketch10.addConstraint(Sketcher.Constraint("Vertical", 3, 3, 5, 3))
sketch10.addConstraint(Sketcher.Constraint("Diameter", 0, 13.0))
sketch10.addConstraint(Sketcher.Constraint("DistanceX", -1, 1, 0, 3, 126.0))
sketch10.addConstraint(Sketcher.Constraint("DistanceX", -1, 1, 1, 3, 24.0))
sketch10.addConstraint(Sketcher.Constraint("DistanceX", 2, 3, 3, 3, 51.0))
sketch10.addConstraint(Sketcher.Constraint("DistanceX", -1, 1, 2, 3, 49.5))
sketch10.addConstraint(Sketcher.Constraint("DistanceY", -1, 1, 2, 3, 4.33))
sketch10.addConstraint(Sketcher.Constraint("DistanceY", -1, 1, 0, 3, 48.4974))
sketch10.addConstraint(Sketcher.Constraint("DistanceY", -1, 1, 3, 3, 92.6647))
pocket6 = doc.addObject("PartDesign::Pocket", "Pocket005")
body.addObject(pocket6)
pocket6.Profile = sketch10
pocket6.Length = 5
pocket6.Reversed = True

# Sketch on XY plane
sketch11 = doc.addObject("Sketcher::SketchObject", "Sketch010")
body.addObject(sketch11)
sketch11.AttachmentSupport = (doc.XY_Plane, [""])
sketch11.MapMode = "FlatFace"
sketch11.AttachmentOffset = App.Placement(App.Vector(0, 0, 15), App.Rotation())
sketch11.addGeometry(Part.Circle(App.Vector(84, 61.9974, 0), App.Vector(0, 0, 1), 3.5), False)
sketch11.addGeometry(Part.Circle(App.Vector(68, 61.9974, 0), App.Vector(0, 0, 1), 3.5), False)
sketch11.addGeometry(Part.Circle(App.Vector(76, 61.9974, 0), App.Vector(0, 0, 1), 3.5), False)
sketch11.addGeometry(Part.Circle(App.Vector(92, 61.9974, 0), App.Vector(0, 0, 1), 3.5), False)
sketch11.addGeometry(Part.Circle(App.Vector(92, 34.9974, 0), App.Vector(0, 0, 1), 3.5), False)
sketch11.addGeometry(Part.Circle(App.Vector(84, 34.9974, 0), App.Vector(0, 0, 1), 3.5), False)
sketch11.addGeometry(Part.Circle(App.Vector(76, 34.9974, 0), App.Vector(0, 0, 1), 3.5), False)
sketch11.addGeometry(Part.Circle(App.Vector(68, 34.9974, 0), App.Vector(0, 0, 1), 3.5), False)
sketch11.addConstraint(Sketcher.Constraint("Equal", 0, 1))
sketch11.addConstraint(Sketcher.Constraint("Equal", 1, 2))
sketch11.addConstraint(Sketcher.Constraint("Equal", 2, 3))
sketch11.addConstraint(Sketcher.Constraint("Equal", 3, 4))
sketch11.addConstraint(Sketcher.Constraint("Equal", 4, 5))
sketch11.addConstraint(Sketcher.Constraint("Equal", 5, 6))
sketch11.addConstraint(Sketcher.Constraint("Equal", 6, 7))
sketch11.addConstraint(Sketcher.Constraint("Horizontal", 0, 3, 1, 3))
sketch11.addConstraint(Sketcher.Constraint("Horizontal", 1, 3, 2, 3))
sketch11.addConstraint(Sketcher.Constraint("Horizontal", 2, 3, 3, 3))
sketch11.addConstraint(Sketcher.Constraint("Horizontal", 4, 3, 5, 3))
sketch11.addConstraint(Sketcher.Constraint("Horizontal", 5, 3, 6, 3))
sketch11.addConstraint(Sketcher.Constraint("Horizontal", 6, 3, 7, 3))
sketch11.addConstraint(Sketcher.Constraint("Vertical", 3, 3, 4, 3))
sketch11.addConstraint(Sketcher.Constraint("Vertical", 0, 3, 5, 3))
sketch11.addConstraint(Sketcher.Constraint("Vertical", 2, 3, 6, 3))
sketch11.addConstraint(Sketcher.Constraint("Vertical", 1, 3, 7, 3))
sketch11.addConstraint(Sketcher.Constraint("Diameter", 0, 7.0))
sketch11.addConstraint(Sketcher.Constraint("DistanceX", -1, 1, 0, 3, 84.0))
sketch11.addConstraint(Sketcher.Constraint("DistanceX", -1, 1, 1, 3, 68.0))
sketch11.addConstraint(Sketcher.Constraint("DistanceX", -1, 1, 2, 3, 76.0))
sketch11.addConstraint(Sketcher.Constraint("DistanceX", -1, 1, 3, 3, 92.0))
sketch11.addConstraint(Sketcher.Constraint("DistanceY", 4, 3, 3, 3, 27.0))
sketch11.addConstraint(Sketcher.Constraint("DistanceY", -1, 1, 0, 3, 61.9974))
pocket7 = doc.addObject("PartDesign::Pocket", "Pocket006")
body.addObject(pocket7)
pocket7.Profile = sketch11
pocket7.Length = 2

# Sketch on YZ plane
sketch12 = doc.addObject("Sketcher::SketchObject", "Sketch011")
body.addObject(sketch12)
sketch12.AttachmentSupport = (doc.YZ_Plane, [""])
sketch12.MapMode = "FlatFace"
sketch12.AttachmentOffset = App.Placement(App.Vector(0, 0, 1), App.Rotation())
sketch12.addGeometry(Part.LineSegment(App.Vector(38.9974, -59, 0), App.Vector(57.9974, -59, 0)), False)
sketch12.addGeometry(Part.LineSegment(App.Vector(57.9974, -59, 0), App.Vector(57.9974, -85, 0)), False)
sketch12.addGeometry(Part.LineSegment(App.Vector(57.9974, -85, 0), App.Vector(38.9974, -85, 0)), False)
sketch12.addGeometry(Part.LineSegment(App.Vector(38.9974, -85, 0), App.Vector(38.9974, -59, 0)), False)
sketch12.addConstraint(Sketcher.Constraint("Coincident", 0, 2, 1, 1))
sketch12.addConstraint(Sketcher.Constraint("Coincident", 1, 2, 2, 1))
sketch12.addConstraint(Sketcher.Constraint("Coincident", 2, 2, 3, 1))
sketch12.addConstraint(Sketcher.Constraint("Coincident", 3, 2, 0, 1))
sketch12.addConstraint(Sketcher.Constraint("Horizontal", 0))
sketch12.addConstraint(Sketcher.Constraint("Vertical", 1))
sketch12.addConstraint(Sketcher.Constraint("Horizontal", 2))
sketch12.addConstraint(Sketcher.Constraint("Vertical", 3))
sketch12.addConstraint(Sketcher.Constraint("DistanceX", 0, 1, 0, 2, 19.0))
sketch12.addConstraint(Sketcher.Constraint("DistanceY", 1, 2, 1, 1, 26.0))
sketch12.addConstraint(Sketcher.Constraint("DistanceY", 0, 2, -1, 1, 59.0))
sketch12.addConstraint(Sketcher.Constraint("DistanceX", -1, 1, 0, 2, 57.9974))
pad5 = doc.addObject("PartDesign::Pad", "Pad004")
body.addObject(pad5)
pad5.Profile = sketch12
pad5.Length = 9

# Sketch on XY plane
sketch13 = doc.addObject("Sketcher::SketchObject", "Sketch012")
body.addObject(sketch13)
sketch13.AttachmentSupport = (doc.XY_Plane, [""])
sketch13.MapMode = "FlatFace"
sketch13.AttachmentOffset = App.Placement(App.Vector(0, 0, 10), App.Rotation())
sketch13.addGeometry(Part.Circle(App.Vector(75, 48.4974, 0), App.Vector(0, 0, 1), 7.5), False)
sketch13.addConstraint(Sketcher.Constraint("Diameter", 0, 15.0))
sketch13.addConstraint(Sketcher.Constraint("DistanceX", -1, 1, 0, 3, 75.0))
sketch13.addConstraint(Sketcher.Constraint("DistanceY", -1, 1, 0, 3, 48.4974))
pocket8 = doc.addObject("PartDesign::Pocket", "Pocket007")
body.addObject(pocket8)
pocket8.Profile = sketch13
pocket8.Type = "ThroughAll"
pocket8.Reversed = True
doc.recompute()

fillet = doc.addObject("PartDesign::Fillet", "Fillet")
body.addObject(fillet)
fillet.Base = (pocket8, edges_at(pocket8, [
    (1, 95.995, -22),
    (149, 95.995, -22),
    (149, 1, -22),
    (1, 1, -22),
]))
fillet.Radius = 10

# Sketch on YZ plane
sketch14 = doc.addObject("Sketcher::SketchObject", "Sketch013")
body.addObject(sketch14)
sketch14.AttachmentSupport = (doc.YZ_Plane, [""])
sketch14.MapMode = "FlatFace"
sketch14.AttachmentOffset = App.Placement(App.Vector(0, 0, 140), App.Rotation())
sketch14.addGeometry(Part.LineSegment(App.Vector(38.9974, -85, 0), App.Vector(38.9974, -59, 0)), False)
sketch14.addGeometry(Part.LineSegment(App.Vector(38.9974, -59, 0), App.Vector(57.9974, -59, 0)), False)
sketch14.addGeometry(Part.LineSegment(App.Vector(57.9974, -59, 0), App.Vector(57.9974, -85, 0)), False)
sketch14.addGeometry(Part.LineSegment(App.Vector(57.9974, -85, 0), App.Vector(38.9974, -85, 0)), False)
sketch14.addConstraint(Sketcher.Constraint("Coincident", 0, 2, 1, 1))
sketch14.addConstraint(Sketcher.Constraint("Coincident", 1, 2, 2, 1))
sketch14.addConstraint(Sketcher.Constraint("Coincident", 2, 2, 3, 1))
sketch14.addConstraint(Sketcher.Constraint("Coincident", 3, 2, 0, 1))
sketch14.addConstraint(Sketcher.Constraint("Vertical", 0))
sketch14.addConstraint(Sketcher.Constraint("Horizontal", 1))
sketch14.addConstraint(Sketcher.Constraint("Vertical", 2))
sketch14.addConstraint(Sketcher.Constraint("Horizontal", 3))
sketch14.addConstraint(Sketcher.Constraint("DistanceX", 1, 1, 1, 2, 19.0))
sketch14.addConstraint(Sketcher.Constraint("DistanceY", 0, 1, 0, 2, 26.0))
sketch14.addConstraint(Sketcher.Constraint("DistanceY", 0, 2, -1, 1, 59.0))
sketch14.addConstraint(Sketcher.Constraint("DistanceX", -1, 1, 0, 2, 38.9974))
pad6 = doc.addObject("PartDesign::Pad", "Pad005")
body.addObject(pad6)
pad6.Profile = sketch14
pad6.Length = 10

# Sketch on YZ plane
sketch15 = doc.addObject("Sketcher::SketchObject", "Sketch014")
body.addObject(sketch15)
sketch15.AttachmentSupport = (doc.YZ_Plane, [""])
sketch15.MapMode = "FlatFace"
sketch15.AttachmentOffset = App.Placement(App.Vector(0, 0, 149), App.Rotation())
sketch15.addGeometry(Part.Circle(App.Vector(78.4974, -17, 0), App.Vector(0, 0, 1), 2.5), False)
sketch15.addGeometry(Part.Circle(App.Vector(18.4974, -17, 0), App.Vector(0, 0, 1), 2.5), False)
sketch15.addConstraint(Sketcher.Constraint("Equal", 0, 1))
sketch15.addConstraint(Sketcher.Constraint("Horizontal", 0, 3, 1, 3))
sketch15.addConstraint(Sketcher.Constraint("Diameter", 0, 5.0))
sketch15.addConstraint(Sketcher.Constraint("DistanceY", 0, 3, -1, 1, 17.0))
sketch15.addConstraint(Sketcher.Constraint("DistanceX", 1, 3, 0, 3, 60.0))
sketch15.addConstraint(Sketcher.Constraint("DistanceX", -1, 1, 0, 3, 78.4974))
pocket9 = doc.addObject("PartDesign::Pocket", "Pocket008")
body.addObject(pocket9)
pocket9.Profile = sketch15
pocket9.Type = "ThroughAll"

doc.recompute()
